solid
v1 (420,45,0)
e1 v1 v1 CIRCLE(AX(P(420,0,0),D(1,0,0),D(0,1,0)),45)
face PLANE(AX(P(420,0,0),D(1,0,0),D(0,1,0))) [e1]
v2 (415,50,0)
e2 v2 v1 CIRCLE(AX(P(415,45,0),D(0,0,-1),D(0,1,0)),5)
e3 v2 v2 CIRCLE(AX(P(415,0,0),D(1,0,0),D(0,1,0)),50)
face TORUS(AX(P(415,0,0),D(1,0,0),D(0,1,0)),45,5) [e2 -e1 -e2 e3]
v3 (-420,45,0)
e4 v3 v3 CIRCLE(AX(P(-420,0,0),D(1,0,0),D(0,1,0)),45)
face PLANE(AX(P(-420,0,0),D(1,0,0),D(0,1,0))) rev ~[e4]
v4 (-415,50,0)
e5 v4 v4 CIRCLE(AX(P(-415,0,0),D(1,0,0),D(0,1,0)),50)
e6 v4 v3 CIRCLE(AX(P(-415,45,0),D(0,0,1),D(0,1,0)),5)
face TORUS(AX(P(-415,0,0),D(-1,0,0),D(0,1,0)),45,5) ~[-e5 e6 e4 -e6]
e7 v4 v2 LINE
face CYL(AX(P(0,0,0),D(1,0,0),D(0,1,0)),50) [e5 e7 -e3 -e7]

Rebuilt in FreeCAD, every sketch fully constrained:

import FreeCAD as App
import Part
import Sketcher
from FreeCAD import Vector
Q = App.Units.Quantity


def edges_at(feature, points):
    """Names of the edges that pass closest to the given points."""
    edges = feature.Shape.Edges
    near = lambda p: min(range(len(edges)), key=lambda i: edges[i].distToShape(Part.Vertex(*p))[0])
    return sorted({f"Edge{near(p) + 1}" for p in points})

doc = App.newDocument("Part")
body = doc.addObject("PartDesign::Body", "Body")

# Sketch on YZ plane
sketch1 = body.newObject("Sketcher::SketchObject", "Sketch")
sketch1.AttachmentSupport = (doc.getObject("YZ_Plane"), [""])
sketch1.MapMode = "FlatFace"
sketch1.addGeometry(Part.Circle(Vector(0, 0, 0), Vector(0, 0, 1), 50), False)
sketch1.addConstraint(Sketcher.Constraint("Coincident", 0, 3, -1, 1))
sketch1.addConstraint(Sketcher.Constraint("Diameter", 0, Q("100 mm")))
pad1 = body.newObject("PartDesign::Pad", "Pad")
pad1.Profile = sketch1
pad1.Type = "TwoLengths"
pad1.Length = 420
pad1.Length2 = 420
doc.recompute()

fillet = body.newObject("PartDesign::Fillet", "Fillet")
fillet.Base = (pad1, edges_at(pad1, [(420, -50, 0), (-420, -50, 0)]))
fillet.Radius = 5

doc.recompute()
